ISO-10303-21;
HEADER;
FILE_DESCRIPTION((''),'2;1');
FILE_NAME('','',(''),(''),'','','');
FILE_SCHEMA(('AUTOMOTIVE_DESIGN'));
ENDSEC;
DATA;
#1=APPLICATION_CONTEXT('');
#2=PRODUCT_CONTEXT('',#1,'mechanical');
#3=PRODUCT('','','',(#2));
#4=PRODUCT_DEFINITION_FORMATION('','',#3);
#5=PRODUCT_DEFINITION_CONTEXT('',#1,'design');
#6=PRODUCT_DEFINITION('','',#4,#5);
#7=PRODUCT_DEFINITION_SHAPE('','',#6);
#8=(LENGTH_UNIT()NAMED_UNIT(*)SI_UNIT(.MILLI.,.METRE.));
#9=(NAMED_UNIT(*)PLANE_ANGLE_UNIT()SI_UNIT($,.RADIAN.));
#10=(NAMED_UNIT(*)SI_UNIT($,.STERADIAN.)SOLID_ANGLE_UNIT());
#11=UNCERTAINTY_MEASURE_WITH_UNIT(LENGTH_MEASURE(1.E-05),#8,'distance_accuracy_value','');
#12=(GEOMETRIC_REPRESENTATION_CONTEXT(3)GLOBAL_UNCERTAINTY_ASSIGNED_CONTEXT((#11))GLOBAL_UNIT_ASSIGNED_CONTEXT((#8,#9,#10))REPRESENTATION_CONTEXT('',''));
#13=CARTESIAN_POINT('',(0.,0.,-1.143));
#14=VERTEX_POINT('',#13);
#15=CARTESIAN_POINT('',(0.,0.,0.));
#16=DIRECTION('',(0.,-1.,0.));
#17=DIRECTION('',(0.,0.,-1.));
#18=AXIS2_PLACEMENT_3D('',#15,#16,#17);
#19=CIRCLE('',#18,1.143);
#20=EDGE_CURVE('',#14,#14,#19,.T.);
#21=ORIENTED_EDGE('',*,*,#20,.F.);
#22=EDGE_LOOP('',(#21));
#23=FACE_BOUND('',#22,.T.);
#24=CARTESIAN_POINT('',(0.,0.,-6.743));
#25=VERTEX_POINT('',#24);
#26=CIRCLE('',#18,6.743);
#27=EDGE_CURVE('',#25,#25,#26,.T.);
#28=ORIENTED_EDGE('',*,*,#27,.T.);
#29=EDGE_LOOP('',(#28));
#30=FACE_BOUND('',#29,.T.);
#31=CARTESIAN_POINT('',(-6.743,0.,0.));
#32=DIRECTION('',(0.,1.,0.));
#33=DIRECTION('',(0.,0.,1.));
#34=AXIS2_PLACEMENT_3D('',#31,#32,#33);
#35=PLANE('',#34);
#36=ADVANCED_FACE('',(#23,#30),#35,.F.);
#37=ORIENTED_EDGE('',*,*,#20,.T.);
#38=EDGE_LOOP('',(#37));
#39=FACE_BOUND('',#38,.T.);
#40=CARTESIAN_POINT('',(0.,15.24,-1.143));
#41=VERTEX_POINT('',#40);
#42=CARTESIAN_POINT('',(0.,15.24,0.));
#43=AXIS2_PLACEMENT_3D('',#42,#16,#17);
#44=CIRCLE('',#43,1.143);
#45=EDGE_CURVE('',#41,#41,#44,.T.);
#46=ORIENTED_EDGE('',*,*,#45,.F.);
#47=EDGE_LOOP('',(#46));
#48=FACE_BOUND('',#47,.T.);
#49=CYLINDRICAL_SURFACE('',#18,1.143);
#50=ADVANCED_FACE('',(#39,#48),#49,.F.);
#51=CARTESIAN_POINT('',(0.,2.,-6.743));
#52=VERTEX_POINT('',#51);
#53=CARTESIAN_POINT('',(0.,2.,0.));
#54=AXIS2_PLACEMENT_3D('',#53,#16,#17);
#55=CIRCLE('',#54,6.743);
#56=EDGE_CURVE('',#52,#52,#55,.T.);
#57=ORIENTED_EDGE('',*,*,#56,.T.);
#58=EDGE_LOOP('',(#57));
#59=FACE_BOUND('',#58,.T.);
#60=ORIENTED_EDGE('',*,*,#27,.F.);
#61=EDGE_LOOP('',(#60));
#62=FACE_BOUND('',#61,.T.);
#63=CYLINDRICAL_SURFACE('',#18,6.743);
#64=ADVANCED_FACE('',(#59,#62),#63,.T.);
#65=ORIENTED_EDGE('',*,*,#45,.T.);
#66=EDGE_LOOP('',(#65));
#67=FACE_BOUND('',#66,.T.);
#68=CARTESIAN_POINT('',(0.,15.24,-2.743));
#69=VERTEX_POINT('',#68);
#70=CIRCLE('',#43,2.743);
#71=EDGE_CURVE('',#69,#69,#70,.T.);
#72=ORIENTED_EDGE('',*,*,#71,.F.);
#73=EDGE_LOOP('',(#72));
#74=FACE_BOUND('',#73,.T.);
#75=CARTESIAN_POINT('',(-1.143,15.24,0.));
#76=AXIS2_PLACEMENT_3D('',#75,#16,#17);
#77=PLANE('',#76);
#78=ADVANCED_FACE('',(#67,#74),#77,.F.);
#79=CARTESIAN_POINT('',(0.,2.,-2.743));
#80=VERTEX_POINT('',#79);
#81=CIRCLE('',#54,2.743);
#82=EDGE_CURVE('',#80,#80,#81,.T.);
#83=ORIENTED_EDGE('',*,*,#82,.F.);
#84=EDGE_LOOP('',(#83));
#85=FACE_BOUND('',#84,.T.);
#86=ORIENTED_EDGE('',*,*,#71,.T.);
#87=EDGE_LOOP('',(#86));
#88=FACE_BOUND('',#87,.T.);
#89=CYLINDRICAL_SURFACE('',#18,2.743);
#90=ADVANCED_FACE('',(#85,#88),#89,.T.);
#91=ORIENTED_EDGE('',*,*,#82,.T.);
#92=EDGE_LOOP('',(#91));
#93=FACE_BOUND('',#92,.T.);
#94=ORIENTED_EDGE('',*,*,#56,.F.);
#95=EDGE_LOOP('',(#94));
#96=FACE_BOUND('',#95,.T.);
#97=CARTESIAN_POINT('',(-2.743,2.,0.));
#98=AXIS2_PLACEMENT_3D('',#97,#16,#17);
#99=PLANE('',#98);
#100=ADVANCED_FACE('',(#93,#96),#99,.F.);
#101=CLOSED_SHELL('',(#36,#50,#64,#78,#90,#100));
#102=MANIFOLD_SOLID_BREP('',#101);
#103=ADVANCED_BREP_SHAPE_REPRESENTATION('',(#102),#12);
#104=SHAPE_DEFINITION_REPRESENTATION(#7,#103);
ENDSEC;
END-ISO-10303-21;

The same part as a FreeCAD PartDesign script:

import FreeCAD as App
import Part
import Sketcher
Q = App.Units.Quantity

doc = App.newDocument("Part")
body = doc.addObject("PartDesign::Body", "Body")

# Sketch on XY plane
sketch1 = body.newObject("Sketcher::SketchObject", "Sketch")
sketch1.AttachmentSupport = (doc.getObject("XY_Plane"), [""])
sketch1.MapMode = "FlatFace"
sketch1.addGeometry(Part.LineSegment(App.Vector(-1.1, 0, 0), App.Vector(-1.1, 15.2, 0)), False)
sketch1.addGeometry(Part.LineSegment(App.Vector(-1.1, 15.2, 0), App.Vector(-2.7, 15.2, 0)), False)
sketch1.addGeometry(Part.LineSegment(App.Vector(-2.7, 15.2, 0), App.Vector(-2.7, 2, 0)), False)
sketch1.addGeometry(Part.LineSegment(App.Vector(-2.7, 2, 0), App.Vector(-6.7, 2, 0)), False)
sketch1.addGeometry(Part.LineSegment(App.Vector(-6.7, 2, 0), App.Vector(-6.7, 0, 0)), False)
sketch1.addGeometry(Part.LineSegment(App.Vector(-6.7, 0, 0), App.Vector(-1.1, 0, 0)), False)
sketch1.addConstraint(Sketcher.Constraint("Coincident", 0, 2, 1, 1))
sketch1.addConstraint(Sketcher.Constraint("Coincident", 1, 2, 2, 1))
sketch1.addConstraint(Sketcher.Constraint("Coincident", 2, 2, 3, 1))
sketch1.addConstraint(Sketcher.Constraint("Coincident", 3, 2, 4, 1))
sketch1.addConstraint(Sketcher.Constraint("Coincident", 4, 2, 5, 1))
sketch1.addConstraint(Sketcher.Constraint("Coincident", 5, 2, 0, 1))
sketch1.addConstraint(Sketcher.Constraint("Vertical", 0))
sketch1.addConstraint(Sketcher.Constraint("Horizontal", 1))
sketch1.addConstraint(Sketcher.Constraint("Vertical", 2))
sketch1.addConstraint(Sketcher.Constraint("Horizontal", 3))
sketch1.addConstraint(Sketcher.Constraint("Vertical", 4))
sketch1.addConstraint(Sketcher.Constraint("Horizontal", 5))
sketch1.addConstraint(Sketcher.Constraint("PointOnObject", 4, 2, -1))
sketch1.addConstraint(Sketcher.Constraint("DistanceX", 3, 2, 3, 1, Q("4 mm")))
sketch1.addConstraint(Sketcher.Constraint("DistanceY", 4, 2, 4, 1, Q("2 mm")))
sketch1.addConstraint(Sketcher.Constraint("DistanceX", 1, 2, 1, 1, Q("1.6 mm")))
sketch1.addConstraint(Sketcher.Constraint("DistanceY", 0, 1, 0, 2, Q("15.24 mm")))
sketch1.addConstraint(Sketcher.Constraint("DistanceX", 0, 2, -1, 1, Q("1.143 mm")))
revolution = body.newObject("PartDesign::Revolution", "Revolution")
revolution.Profile = sketch1
revolution.ReferenceAxis = (sketch1, ["V_Axis"])
revolution.Angle = 360

doc.recompute()
